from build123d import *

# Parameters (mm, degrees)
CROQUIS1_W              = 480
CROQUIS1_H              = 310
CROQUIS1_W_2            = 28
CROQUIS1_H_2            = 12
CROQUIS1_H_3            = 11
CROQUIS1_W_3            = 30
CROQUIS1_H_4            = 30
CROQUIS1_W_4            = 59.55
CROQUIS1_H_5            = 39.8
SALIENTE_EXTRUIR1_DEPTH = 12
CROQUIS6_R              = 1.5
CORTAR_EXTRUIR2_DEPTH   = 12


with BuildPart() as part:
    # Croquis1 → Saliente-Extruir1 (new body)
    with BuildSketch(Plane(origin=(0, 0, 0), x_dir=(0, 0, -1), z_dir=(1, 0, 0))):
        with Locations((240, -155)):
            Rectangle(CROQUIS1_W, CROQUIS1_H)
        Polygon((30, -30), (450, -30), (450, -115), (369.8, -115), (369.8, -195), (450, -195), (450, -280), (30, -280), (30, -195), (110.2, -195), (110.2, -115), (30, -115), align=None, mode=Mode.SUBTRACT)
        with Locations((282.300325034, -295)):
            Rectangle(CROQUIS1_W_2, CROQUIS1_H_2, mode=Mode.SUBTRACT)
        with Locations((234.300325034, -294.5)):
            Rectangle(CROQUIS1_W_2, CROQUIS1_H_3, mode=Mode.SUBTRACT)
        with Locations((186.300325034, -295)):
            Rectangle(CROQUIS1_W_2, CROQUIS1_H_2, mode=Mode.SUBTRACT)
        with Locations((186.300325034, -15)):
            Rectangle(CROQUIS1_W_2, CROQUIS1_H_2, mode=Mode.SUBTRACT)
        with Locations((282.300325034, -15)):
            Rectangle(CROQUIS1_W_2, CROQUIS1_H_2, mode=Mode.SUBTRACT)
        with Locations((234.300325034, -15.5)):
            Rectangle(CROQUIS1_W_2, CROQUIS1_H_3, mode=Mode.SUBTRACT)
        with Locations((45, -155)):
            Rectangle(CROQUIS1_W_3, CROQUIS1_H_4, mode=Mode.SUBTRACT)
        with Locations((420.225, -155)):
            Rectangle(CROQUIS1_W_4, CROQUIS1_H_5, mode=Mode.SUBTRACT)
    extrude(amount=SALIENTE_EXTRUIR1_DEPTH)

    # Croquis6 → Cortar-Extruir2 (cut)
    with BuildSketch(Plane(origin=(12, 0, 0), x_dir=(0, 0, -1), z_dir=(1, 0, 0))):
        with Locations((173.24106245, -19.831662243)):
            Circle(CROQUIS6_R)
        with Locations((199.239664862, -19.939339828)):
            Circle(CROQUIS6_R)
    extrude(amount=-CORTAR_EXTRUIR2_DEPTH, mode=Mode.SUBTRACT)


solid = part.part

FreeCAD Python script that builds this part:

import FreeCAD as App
import Part
import Sketcher

V = App.Vector

doc = App.newDocument("Part")
body = doc.addObject("PartDesign::Body", "Body")

sketch1 = body.newObject("Sketcher::SketchObject", "Sketch")
sketch1.AttachmentSupport = (doc.getObject("YZ_Plane"), [""])
sketch1.MapMode = "FlatFace"
sketch1.addGeometry([
    Part.LineSegment(V(0, 0, 0), V(-310, 0, 0)),
    Part.LineSegment(V(-310, 0, 0), V(-310, -480, 0)),
    Part.LineSegment(V(-310, -480, 0), V(0, -480, 0)),
    Part.LineSegment(V(0, -480, 0), V(0, 0, 0)),
    Part.LineSegment(V(-301, -200.300325, 0), V(-301, -172.300325, 0)),
    Part.LineSegment(V(-301, -172.300325, 0), V(-289, -172.300325, 0)),
    Part.LineSegment(V(-289, -172.300325, 0), V(-289, -200.300325, 0)),
    Part.LineSegment(V(-289, -200.300325, 0), V(-301, -200.300325, 0)),
    Part.LineSegment(V(-300, -248.300325, 0), V(-300, -220.300325, 0)),
    Part.LineSegment(V(-300, -220.300325, 0), V(-289, -220.300325, 0)),
    Part.LineSegment(V(-289, -220.300325, 0), V(-289, -248.300325, 0)),
    Part.LineSegment(V(-289, -248.300325, 0), V(-300, -248.300325, 0)),
    Part.LineSegment(V(-301, -296.300325, 0), V(-301, -268.300325, 0)),
    Part.LineSegment(V(-301, -268.300325, 0), V(-289, -268.300325, 0)),
    Part.LineSegment(V(-289, -268.300325, 0), V(-289, -296.300325, 0)),
    Part.LineSegment(V(-289, -296.300325, 0), V(-301, -296.300325, 0)),
    Part.LineSegment(V(-170, -60, 0), V(-170, -30, 0)),
    Part.LineSegment(V(-170, -30, 0), V(-140, -30, 0)),
    Part.LineSegment(V(-140, -30, 0), V(-140, -60, 0)),
    Part.LineSegment(V(-140, -60, 0), V(-170, -60, 0)),
    Part.LineSegment(V(-21, -200.300325, 0), V(-21, -172.300325, 0)),
    Part.LineSegment(V(-21, -172.300325, 0), V(-9, -172.300325, 0)),
    Part.LineSegment(V(-9, -172.300325, 0), V(-9, -200.300325, 0)),
    Part.LineSegment(V(-9, -200.300325, 0), V(-21, -200.300325, 0)),
    Part.LineSegment(V(-21, -248.300325, 0), V(-21, -220.300325, 0)),
    Part.LineSegment(V(-21, -220.300325, 0), V(-10, -220.300325, 0)),
    Part.LineSegment(V(-10, -220.300325, 0), V(-10, -248.300325, 0)),
    Part.LineSegment(V(-10, -248.300325, 0), V(-21, -248.300325, 0)),
    Part.LineSegment(V(-115, -30, 0), V(-30, -30, 0)),
    Part.LineSegment(V(-30, -30, 0), V(-30, -450, 0)),
    Part.LineSegment(V(-30, -450, 0), V(-115, -450, 0)),
    Part.LineSegment(V(-115, -450, 0), V(-115, -369.8, 0)),
    Part.LineSegment(V(-115, -369.8, 0), V(-195, -369.8, 0)),
    Part.LineSegment(V(-195, -369.8, 0), V(-195, -450, 0)),
    Part.LineSegment(V(-195, -450, 0), V(-280, -450, 0)),
    Part.LineSegment(V(-280, -450, 0), V(-280, -30, 0)),
    Part.LineSegment(V(-280, -30, 0), V(-195, -30, 0)),
    Part.LineSegment(V(-195, -30, 0), V(-195, -110.2, 0)),
    Part.LineSegment(V(-195, -110.2, 0), V(-115, -110.2, 0)),
    Part.LineSegment(V(-115, -110.2, 0), V(-115, -30, 0)),
    Part.LineSegment(V(-174.9, -450, 0), V(-174.9, -390.45, 0)),
    Part.LineSegment(V(-174.9, -390.45, 0), V(-135.1, -390.45, 0)),
    Part.LineSegment(V(-135.1, -390.45, 0), V(-135.1, -450, 0)),
    Part.LineSegment(V(-135.1, -450, 0), V(-174.9, -450, 0)),
    Part.LineSegment(V(-21, -296.300325, 0), V(-21, -268.300325, 0)),
    Part.LineSegment(V(-21, -268.300325, 0), V(-9, -268.300325, 0)),
    Part.LineSegment(V(-9, -268.300325, 0), V(-9, -296.300325, 0)),
    Part.LineSegment(V(-9, -296.300325, 0), V(-21, -296.300325, 0)),
], False)
sketch1.addConstraint([
    Sketcher.Constraint("Coincident", 0, 2, 1, 1),
    Sketcher.Constraint("Coincident", 1, 2, 2, 1),
    Sketcher.Constraint("Coincident", 2, 2, 3, 1),
    Sketcher.Constraint("Coincident", 3, 2, 0, 1),
    Sketcher.Constraint("Coincident", 4, 2, 5, 1),
    Sketcher.Constraint("Coincident", 5, 2, 6, 1),
    Sketcher.Constraint("Coincident", 6, 2, 7, 1),
    Sketcher.Constraint("Coincident", 7, 2, 4, 1),
    Sketcher.Constraint("Coincident", 8, 2, 9, 1),
    Sketcher.Constraint("Coincident", 9, 2, 10, 1),
    Sketcher.Constraint("Coincident", 10, 2, 11, 1),
    Sketcher.Constraint("Coincident", 11, 2, 8, 1),
    Sketcher.Constraint("Coincident", 12, 2, 13, 1),
    Sketcher.Constraint("Coincident", 13, 2, 14, 1),
    Sketcher.Constraint("Coincident", 14, 2, 15, 1),
    Sketcher.Constraint("Coincident", 15, 2, 12, 1),
    Sketcher.Constraint("Coincident", 16, 2, 17, 1),
    Sketcher.Constraint("Coincident", 17, 2, 18, 1),
    Sketcher.Constraint("Coincident", 18, 2, 19, 1),
    Sketcher.Constraint("Coincident", 19, 2, 16, 1),
    Sketcher.Constraint("Coincident", 20, 2, 21, 1),
    Sketcher.Constraint("Coincident", 21, 2, 22, 1),
    Sketcher.Constraint("Coincident", 22, 2, 23, 1),
    Sketcher.Constraint("Coincident", 23, 2, 20, 1),
    Sketcher.Constraint("Coincident", 24, 2, 25, 1),
    Sketcher.Constraint("Coincident", 25, 2, 26, 1),
    Sketcher.Constraint("Coincident", 26, 2, 27, 1),
    Sketcher.Constraint("Coincident", 27, 2, 24, 1),
    Sketcher.Constraint("Coincident", 28, 2, 29, 1),
    Sketcher.Constraint("Coincident", 29, 2, 30, 1),
    Sketcher.Constraint("Coincident", 30, 2, 31, 1),
    Sketcher.Constraint("Coincident", 31, 2, 32, 1),
    Sketcher.Constraint("Coincident", 32, 2, 33, 1),
    Sketcher.Constraint("Coincident", 33, 2, 34, 1),
    Sketcher.Constraint("Coincident", 34, 2, 35, 1),
    Sketcher.Constraint("Coincident", 35, 2, 36, 1),
    Sketcher.Constraint("Coincident", 36, 2, 37, 1),
    Sketcher.Constraint("Coincident", 37, 2, 38, 1),
    Sketcher.Constraint("Coincident", 38, 2, 39, 1),
    Sketcher.Constraint("Coincident", 39, 2, 28, 1),
    Sketcher.Constraint("Coincident", 40, 2, 41, 1),
    Sketcher.Constraint("Coincident", 41, 2, 42, 1),
    Sketcher.Constraint("Coincident", 42, 2, 43, 1),
    Sketcher.Constraint("Coincident", 43, 2, 40, 1),
    Sketcher.Constraint("Coincident", 44, 2, 45, 1),
    Sketcher.Constraint("Coincident", 45, 2, 46, 1),
    Sketcher.Constraint("Coincident", 46, 2, 47, 1),
    Sketcher.Constraint("Coincident", 47, 2, 44, 1),
    Sketcher.Constraint("Horizontal", 0),
    Sketcher.Constraint("Vertical", 1),
    Sketcher.Constraint("Horizontal", 2),
    Sketcher.Constraint("Vertical", 3),
    Sketcher.Constraint("Vertical", 4),
    Sketcher.Constraint("Horizontal", 5),
    Sketcher.Constraint("Vertical", 6),
    Sketcher.Constraint("Horizontal", 7),
    Sketcher.Constraint("Vertical", 8),
    Sketcher.Constraint("Horizontal", 9),
    Sketcher.Constraint("Vertical", 10),
    Sketcher.Constraint("Horizontal", 11),
    Sketcher.Constraint("Vertical", 12),
    Sketcher.Constraint("Horizontal", 13),
    Sketcher.Constraint("Vertical", 14),
    Sketcher.Constraint("Horizontal", 15),
    Sketcher.Constraint("Vertical", 16),
    Sketcher.Constraint("Horizontal", 17),
    Sketcher.Constraint("Vertical", 18),
    Sketcher.Constraint("Horizontal", 19),
    Sketcher.Constraint("Vertical", 20),
    Sketcher.Constraint("Horizontal", 21),
    Sketcher.Constraint("Vertical", 22),
    Sketcher.Constraint("Horizontal", 23),
    Sketcher.Constraint("Vertical", 24),
    Sketcher.Constraint("Horizontal", 25),
    Sketcher.Constraint("Vertical", 26),
    Sketcher.Constraint("Horizontal", 27),
    Sketcher.Constraint("Horizontal", 28),
    Sketcher.Constraint("Vertical", 29),
    Sketcher.Constraint("Horizontal", 30),
    Sketcher.Constraint("Vertical", 31),
    Sketcher.Constraint("Horizontal", 32),
    Sketcher.Constraint("Vertical", 33),
    Sketcher.Constraint("Horizontal", 34),
    Sketcher.Constraint("Vertical", 35),
    Sketcher.Constraint("Horizontal", 36),
    Sketcher.Constraint("Vertical", 37),
    Sketcher.Constraint("Horizontal", 38),
    Sketcher.Constraint("Vertical", 39),
    Sketcher.Constraint("Vertical", 40),
    Sketcher.Constraint("Horizontal", 41),
    Sketcher.Constraint("Vertical", 42),
    Sketcher.Constraint("Horizontal", 43),
    Sketcher.Constraint("Vertical", 44),
    Sketcher.Constraint("Horizontal", 45),
    Sketcher.Constraint("Vertical", 46),
    Sketcher.Constraint("Horizontal", 47),
    Sketcher.Constraint("Coincident", 3, 2, -1, 1),
    Sketcher.Constraint("Horizontal", 5, 2, 20, 2),
    Sketcher.Constraint("Horizontal", 7, 2, 22, 2),
    Sketcher.Constraint("Horizontal", 9, 2, 24, 2),
    Sketcher.Constraint("Horizontal", 11, 2, 26, 2),
    Sketcher.Constraint("Horizontal", 17, 2, 28, 2),
    Sketcher.Constraint("Horizontal", 30, 2, 33, 2),
    Sketcher.Constraint("Horizontal", 28, 2, 35, 2),
    Sketcher.Constraint("Horizontal", 34, 2, 42, 2),
    Sketcher.Constraint("Horizontal", 13, 2, 44, 2),
    Sketcher.Constraint("Horizontal", 15, 2, 46, 2),
    Sketcher.Constraint("Vertical", 6, 2, 9, 2),
    Sketcher.Constraint("Vertical", 7, 2, 12, 2),
    Sketcher.Constraint("Vertical", 10, 2, 13, 2),
    Sketcher.Constraint("Vertical", 23, 2, 24, 2),
    Sketcher.Constraint("Vertical", 33, 2, 36, 2),
    Sketcher.Constraint("Vertical", 31, 2, 38, 2),
    Sketcher.Constraint("Vertical", 27, 2, 44, 2),
    Sketcher.Constraint("Vertical", 22, 2, 45, 2),
    Sketcher.Constraint("Equal", 15, 21),
    Sketcher.Constraint("Equal", 11, 25),
    Sketcher.Constraint("Equal", 30, 34),
    Sketcher.Constraint("Equal", 6, 8),
    Sketcher.Constraint("Equal", 10, 12),
    Sketcher.Constraint("Equal", 19, 16),
    Sketcher.Constraint("Equal", 33, 37),
    Sketcher.Constraint("DistanceX", 0, 2, 0, 1, 310.0),
    Sketcher.Constraint("DistanceX", 5, 1, 5, 2, 12.0),
    Sketcher.Constraint("DistanceX", 9, 1, 9, 2, 11.0),
    Sketcher.Constraint("DistanceX", 17, 1, 17, 2, 30.0),
    Sketcher.Constraint("DistanceX", 28, 1, 28, 2, 85.0),
    Sketcher.Constraint("DistanceX", 32, 2, 32, 1, 80.0),
    Sketcher.Constraint("DistanceY", 1, 2, 1, 1, 480.0),
    Sketcher.Constraint("DistanceY", 4, 1, 4, 2, 28.0),
    Sketcher.Constraint("DistanceY", 29, 2, 29, 1, 420.0),
    Sketcher.Constraint("DistanceX", 41, 1, 41, 2, 39.8),
    Sketcher.Constraint("DistanceY", 31, 1, 31, 2, 80.2),
    Sketcher.Constraint("DistanceX", 4, 2, -1, 1, 301.0),
    Sketcher.Constraint("DistanceX", 16, 2, -1, 1, 170.0),
    Sketcher.Constraint("DistanceY", 16, 2, -1, 1, 30.0),
    Sketcher.Constraint("DistanceX", 20, 2, -1, 1, 21.0),
    Sketcher.Constraint("DistanceX", 28, 2, -1, 1, 30.0),
    Sketcher.Constraint("DistanceY", 8, 2, 7, 2, 20.0),
    Sketcher.Constraint("DistanceY", 12, 2, 11, 2, 20.0),
    Sketcher.Constraint("DistanceY", 40, 1, 40, 2, 59.55),
    Sketcher.Constraint("DistanceX", 40, 2, -1, 1, 174.9),
    Sketcher.Constraint("DistanceY", 4, 2, -1, 1, 172.300325),
])
pad1 = body.newObject("PartDesign::Pad", "Pad")
pad1.Profile = sketch1
pad1.Length = 12

sketch2 = body.newObject("Sketcher::SketchObject", "Sketch001")
sketch2.AttachmentSupport = (doc.getObject("YZ_Plane"), [""])
sketch2.MapMode = "FlatFace"
sketch2.AttachmentOffset = App.Placement(V(0, 0, 12), App.Rotation())
sketch2.addGeometry([
    Part.Circle(V(-19.831662, -173.241062, 0), V(0, 0, 1), 1.5),
    Part.Circle(V(-19.93934, -199.239665, 0), V(0, 0, 1), 1.5),
], False)
sketch2.addConstraint([
    Sketcher.Constraint("Equal", 0, 1),
    Sketcher.Constraint("Diameter", 0, 3.0),
    Sketcher.Constraint("DistanceX", 1, 3, -1, 1, 19.93934),
    Sketcher.Constraint("DistanceX", 0, 3, -1, 1, 19.831662),
    Sketcher.Constraint("DistanceY", 0, 3, -1, 1, 173.241062),
    Sketcher.Constraint("DistanceY", 1, 3, -1, 1, 199.239665),
])
pocket1 = body.newObject("PartDesign::Pocket", "Pocket")
pocket1.Profile = sketch2
pocket1.Length = 12

doc.recompute()
